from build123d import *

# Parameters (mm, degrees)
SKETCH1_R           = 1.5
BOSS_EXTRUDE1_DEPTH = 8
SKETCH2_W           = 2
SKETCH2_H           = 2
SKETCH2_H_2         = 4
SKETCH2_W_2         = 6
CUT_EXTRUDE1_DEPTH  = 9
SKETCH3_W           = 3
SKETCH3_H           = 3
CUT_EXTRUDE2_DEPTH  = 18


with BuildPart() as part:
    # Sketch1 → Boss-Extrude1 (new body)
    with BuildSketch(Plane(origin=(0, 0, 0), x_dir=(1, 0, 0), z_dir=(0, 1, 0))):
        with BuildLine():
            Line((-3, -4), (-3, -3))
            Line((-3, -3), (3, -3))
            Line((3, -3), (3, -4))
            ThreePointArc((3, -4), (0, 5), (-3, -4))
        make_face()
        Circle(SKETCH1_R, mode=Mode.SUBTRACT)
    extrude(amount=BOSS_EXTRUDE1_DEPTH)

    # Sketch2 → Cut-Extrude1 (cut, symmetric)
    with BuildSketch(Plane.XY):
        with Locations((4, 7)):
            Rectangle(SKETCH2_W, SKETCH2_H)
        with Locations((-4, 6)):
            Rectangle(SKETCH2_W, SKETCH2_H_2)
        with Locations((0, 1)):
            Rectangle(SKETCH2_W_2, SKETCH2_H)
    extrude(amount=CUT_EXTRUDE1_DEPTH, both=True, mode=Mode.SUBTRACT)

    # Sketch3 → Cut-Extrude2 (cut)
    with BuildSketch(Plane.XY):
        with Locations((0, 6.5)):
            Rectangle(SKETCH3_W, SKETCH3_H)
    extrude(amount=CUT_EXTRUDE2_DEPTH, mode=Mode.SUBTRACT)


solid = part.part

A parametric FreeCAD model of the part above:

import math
import FreeCAD as App
import Part
import Sketcher
Q = App.Units.Quantity

doc = App.newDocument("Part")
body = doc.addObject("PartDesign::Body", "Body")

# Sketch on XZ plane
sketch1 = body.newObject("Sketcher::SketchObject", "Sketch")
sketch1.AttachmentSupport = (doc.getObject("XZ_Plane"), [""])
sketch1.MapMode = "FlatFace"
sketch1.addGeometry(Part.LineSegment(App.Vector(-3, 4, 0), App.Vector(-3, 3, 0)), False)
sketch1.addGeometry(Part.LineSegment(App.Vector(-3, 3, 0), App.Vector(3, 3, 0)), False)
sketch1.addGeometry(Part.LineSegment(App.Vector(3, 3, 0), App.Vector(3, 4, 0)), False)
sketch1.addGeometry(Part.ArcOfCircle(Part.Circle(App.Vector(0, 0, 0), App.Vector(0, 0, 1), 5), math.radians(127), math.radians(413)), False)
sketch1.addGeometry(Part.Circle(App.Vector(0, 0, 0), App.Vector(0, 0, 1), 1.5), False)
sketch1.addConstraint(Sketcher.Constraint("Coincident", 0, 2, 1, 1))
sketch1.addConstraint(Sketcher.Constraint("Coincident", 1, 2, 2, 1))
sketch1.addConstraint(Sketcher.Constraint("Coincident", 2, 2, 3, 2))
sketch1.addConstraint(Sketcher.Constraint("Coincident", 3, 1, 0, 1))
sketch1.addConstraint(Sketcher.Constraint("Vertical", 0))
sketch1.addConstraint(Sketcher.Constraint("Horizontal", 1))
sketch1.addConstraint(Sketcher.Constraint("Vertical", 2))
sketch1.addConstraint(Sketcher.Constraint("Coincident", 3, 3, -1, 1))
sketch1.addConstraint(Sketcher.Constraint("Coincident", 4, 3, -1, 1))
sketch1.addConstraint(Sketcher.Constraint("Horizontal", 2, 2, 3, 1))
sketch1.addConstraint(Sketcher.Constraint("Diameter", 4, Q("3 mm")))
sketch1.addConstraint(Sketcher.Constraint("Radius", 3, Q("5 mm")))
sketch1.addConstraint(Sketcher.Constraint("DistanceX", 1, 1, 1, 2, Q("6 mm")))
sketch1.addConstraint(Sketcher.Constraint("DistanceY", 0, 2, 0, 1, Q("1 mm")))
pad1 = body.newObject("PartDesign::Pad", "Pad")
pad1.Profile = sketch1
pad1.Length = 8
pad1.Reversed = True

# Sketch on XY plane
sketch2 = body.newObject("Sketcher::SketchObject", "Sketch001")
sketch2.AttachmentSupport = (doc.getObject("XY_Plane"), [""])
sketch2.MapMode = "FlatFace"
sketch2.addGeometry(Part.LineSegment(App.Vector(3, 8, 0), App.Vector(3, 6, 0)), False)
sketch2.addGeometry(Part.LineSegment(App.Vector(3, 6, 0), App.Vector(5, 6, 0)), False)
sketch2.addGeometry(Part.LineSegment(App.Vector(5, 6, 0), App.Vector(5, 8, 0)), False)
sketch2.addGeometry(Part.LineSegment(App.Vector(5, 8, 0), App.Vector(3, 8, 0)), False)
sketch2.addGeometry(Part.LineSegment(App.Vector(-5, 8, 0), App.Vector(-5, 4, 0)), False)
sketch2.addGeometry(Part.LineSegment(App.Vector(-5, 4, 0), App.Vector(-3, 4, 0)), False)
sketch2.addGeometry(Part.LineSegment(App.Vector(-3, 4, 0), App.Vector(-3, 8, 0)), False)
sketch2.addGeometry(Part.LineSegment(App.Vector(-3, 8, 0), App.Vector(-5, 8, 0)), False)
sketch2.addGeometry(Part.LineSegment(App.Vector(-3, 2, 0), App.Vector(-3, 0, 0)), False)
sketch2.addGeometry(Part.LineSegment(App.Vector(-3, 0, 0), App.Vector(3, 0, 0)), False)
sketch2.addGeometry(Part.LineSegment(App.Vector(3, 0, 0), App.Vector(3, 2, 0)), False)
sketch2.addGeometry(Part.LineSegment(App.Vector(3, 2, 0), App.Vector(-3, 2, 0)), False)
sketch2.addConstraint(Sketcher.Constraint("Coincident", 0, 2, 1, 1))
sketch2.addConstraint(Sketcher.Constraint("Coincident", 1, 2, 2, 1))
sketch2.addConstraint(Sketcher.Constraint("Coincident", 2, 2, 3, 1))
sketch2.addConstraint(Sketcher.Constraint("Coincident", 3, 2, 0, 1))
sketch2.addConstraint(Sketcher.Constraint("Coincident", 4, 2, 5, 1))
sketch2.addConstraint(Sketcher.Constraint("Coincident", 5, 2, 6, 1))
sketch2.addConstraint(Sketcher.Constraint("Coincident", 6, 2, 7, 1))
sketch2.addConstraint(Sketcher.Constraint("Coincident", 7, 2, 4, 1))
sketch2.addConstraint(Sketcher.Constraint("Coincident", 8, 2, 9, 1))
sketch2.addConstraint(Sketcher.Constraint("Coincident", 9, 2, 10, 1))
sketch2.addConstraint(Sketcher.Constraint("Coincident", 10, 2, 11, 1))
sketch2.addConstraint(Sketcher.Constraint("Coincident", 11, 2, 8, 1))
sketch2.addConstraint(Sketcher.Constraint("Vertical", 0))
sketch2.addConstraint(Sketcher.Constraint("Horizontal", 1))
sketch2.addConstraint(Sketcher.Constraint("Vertical", 2))
sketch2.addConstraint(Sketcher.Constraint("Horizontal", 3))
sketch2.addConstraint(Sketcher.Constraint("Vertical", 4))
sketch2.addConstraint(Sketcher.Constraint("Horizontal", 5))
sketch2.addConstraint(Sketcher.Constraint("Vertical", 6))
sketch2.addConstraint(Sketcher.Constraint("Horizontal", 7))
sketch2.addConstraint(Sketcher.Constraint("Vertical", 8))
sketch2.addConstraint(Sketcher.Constraint("Horizontal", 9))
sketch2.addConstraint(Sketcher.Constraint("Vertical", 10))
sketch2.addConstraint(Sketcher.Constraint("Horizontal", 11))
sketch2.addConstraint(Sketcher.Constraint("Symmetric", 8, 2, 9, 2, -1, 1))
sketch2.addConstraint(Sketcher.Constraint("Symmetric", 3, 2, 6, 2, -2))
sketch2.addConstraint(Sketcher.Constraint("Vertical", 6, 2, 8, 2))
sketch2.addConstraint(Sketcher.Constraint("Equal", 3, 5))
sketch2.addConstraint(Sketcher.Constraint("Equal", 7, 0))
sketch2.addConstraint(Sketcher.Constraint("Equal", 2, 8))
sketch2.addConstraint(Sketcher.Constraint("DistanceX", 1, 1, 1, 2, Q("2 mm")))
sketch2.addConstraint(Sketcher.Constraint("DistanceX", 9, 1, 9, 2, Q("6 mm")))
sketch2.addConstraint(Sketcher.Constraint("DistanceY", 4, 2, 4, 1, Q("4 mm")))
sketch2.addConstraint(Sketcher.Constraint("DistanceY", -1, 1, 0, 2, Q("6 mm")))
pocket1 = body.newObject("PartDesign::Pocket", "Pocket")
pocket1.Profile = sketch2
pocket1.Length = 18
pocket1.Midplane = True

# Sketch on XY plane
sketch3 = body.newObject("Sketcher::SketchObject", "Sketch002")
sketch3.AttachmentSupport = (doc.getObject("XY_Plane"), [""])
sketch3.MapMode = "FlatFace"
sketch3.addGeometry(Part.LineSegment(App.Vector(-1.5, 8, 0), App.Vector(-1.5, 5, 0)), False)
sketch3.addGeometry(Part.LineSegment(App.Vector(-1.5, 5, 0), App.Vector(1.5, 5, 0)), False)
sketch3.addGeometry(Part.LineSegment(App.Vector(1.5, 5, 0), App.Vector(1.5, 8, 0)), False)
sketch3.addGeometry(Part.LineSegment(App.Vector(1.5, 8, 0), App.Vector(-1.5, 8, 0)), False)
sketch3.addConstraint(Sketcher.Constraint("Coincident", 0, 2, 1, 1))
sketch3.addConstraint(Sketcher.Constraint("Coincident", 1, 2, 2, 1))
sketch3.addConstraint(Sketcher.Constraint("Coincident", 2, 2, 3, 1))
sketch3.addConstraint(Sketcher.Constraint("Coincident", 3, 2, 0, 1))
sketch3.addConstraint(Sketcher.Constraint("Vertical", 0))
sketch3.addConstraint(Sketcher.Constraint("Horizontal", 1))
sketch3.addConstraint(Sketcher.Constraint("Vertical", 2))
sketch3.addConstraint(Sketcher.Constraint("Horizontal", 3))
sketch3.addConstraint(Sketcher.Constraint("Equal", 3, 0))
sketch3.addConstraint(Sketcher.Constraint("DistanceX", 1, 1, 1, 2, Q("3 mm")))
sketch3.addConstraint(Sketcher.Constraint("DistanceY", -1, 1, 0, 2, Q("5 mm")))
sketch3.addConstraint(Sketcher.Constraint("DistanceX", 0, 2, -1, 1, Q("1.5 mm")))
pocket2 = body.newObject("PartDesign::Pocket", "Pocket001")
pocket2.Profile = sketch3
pocket2.Length = 18
pocket2.Reversed = True

doc.recompute()
